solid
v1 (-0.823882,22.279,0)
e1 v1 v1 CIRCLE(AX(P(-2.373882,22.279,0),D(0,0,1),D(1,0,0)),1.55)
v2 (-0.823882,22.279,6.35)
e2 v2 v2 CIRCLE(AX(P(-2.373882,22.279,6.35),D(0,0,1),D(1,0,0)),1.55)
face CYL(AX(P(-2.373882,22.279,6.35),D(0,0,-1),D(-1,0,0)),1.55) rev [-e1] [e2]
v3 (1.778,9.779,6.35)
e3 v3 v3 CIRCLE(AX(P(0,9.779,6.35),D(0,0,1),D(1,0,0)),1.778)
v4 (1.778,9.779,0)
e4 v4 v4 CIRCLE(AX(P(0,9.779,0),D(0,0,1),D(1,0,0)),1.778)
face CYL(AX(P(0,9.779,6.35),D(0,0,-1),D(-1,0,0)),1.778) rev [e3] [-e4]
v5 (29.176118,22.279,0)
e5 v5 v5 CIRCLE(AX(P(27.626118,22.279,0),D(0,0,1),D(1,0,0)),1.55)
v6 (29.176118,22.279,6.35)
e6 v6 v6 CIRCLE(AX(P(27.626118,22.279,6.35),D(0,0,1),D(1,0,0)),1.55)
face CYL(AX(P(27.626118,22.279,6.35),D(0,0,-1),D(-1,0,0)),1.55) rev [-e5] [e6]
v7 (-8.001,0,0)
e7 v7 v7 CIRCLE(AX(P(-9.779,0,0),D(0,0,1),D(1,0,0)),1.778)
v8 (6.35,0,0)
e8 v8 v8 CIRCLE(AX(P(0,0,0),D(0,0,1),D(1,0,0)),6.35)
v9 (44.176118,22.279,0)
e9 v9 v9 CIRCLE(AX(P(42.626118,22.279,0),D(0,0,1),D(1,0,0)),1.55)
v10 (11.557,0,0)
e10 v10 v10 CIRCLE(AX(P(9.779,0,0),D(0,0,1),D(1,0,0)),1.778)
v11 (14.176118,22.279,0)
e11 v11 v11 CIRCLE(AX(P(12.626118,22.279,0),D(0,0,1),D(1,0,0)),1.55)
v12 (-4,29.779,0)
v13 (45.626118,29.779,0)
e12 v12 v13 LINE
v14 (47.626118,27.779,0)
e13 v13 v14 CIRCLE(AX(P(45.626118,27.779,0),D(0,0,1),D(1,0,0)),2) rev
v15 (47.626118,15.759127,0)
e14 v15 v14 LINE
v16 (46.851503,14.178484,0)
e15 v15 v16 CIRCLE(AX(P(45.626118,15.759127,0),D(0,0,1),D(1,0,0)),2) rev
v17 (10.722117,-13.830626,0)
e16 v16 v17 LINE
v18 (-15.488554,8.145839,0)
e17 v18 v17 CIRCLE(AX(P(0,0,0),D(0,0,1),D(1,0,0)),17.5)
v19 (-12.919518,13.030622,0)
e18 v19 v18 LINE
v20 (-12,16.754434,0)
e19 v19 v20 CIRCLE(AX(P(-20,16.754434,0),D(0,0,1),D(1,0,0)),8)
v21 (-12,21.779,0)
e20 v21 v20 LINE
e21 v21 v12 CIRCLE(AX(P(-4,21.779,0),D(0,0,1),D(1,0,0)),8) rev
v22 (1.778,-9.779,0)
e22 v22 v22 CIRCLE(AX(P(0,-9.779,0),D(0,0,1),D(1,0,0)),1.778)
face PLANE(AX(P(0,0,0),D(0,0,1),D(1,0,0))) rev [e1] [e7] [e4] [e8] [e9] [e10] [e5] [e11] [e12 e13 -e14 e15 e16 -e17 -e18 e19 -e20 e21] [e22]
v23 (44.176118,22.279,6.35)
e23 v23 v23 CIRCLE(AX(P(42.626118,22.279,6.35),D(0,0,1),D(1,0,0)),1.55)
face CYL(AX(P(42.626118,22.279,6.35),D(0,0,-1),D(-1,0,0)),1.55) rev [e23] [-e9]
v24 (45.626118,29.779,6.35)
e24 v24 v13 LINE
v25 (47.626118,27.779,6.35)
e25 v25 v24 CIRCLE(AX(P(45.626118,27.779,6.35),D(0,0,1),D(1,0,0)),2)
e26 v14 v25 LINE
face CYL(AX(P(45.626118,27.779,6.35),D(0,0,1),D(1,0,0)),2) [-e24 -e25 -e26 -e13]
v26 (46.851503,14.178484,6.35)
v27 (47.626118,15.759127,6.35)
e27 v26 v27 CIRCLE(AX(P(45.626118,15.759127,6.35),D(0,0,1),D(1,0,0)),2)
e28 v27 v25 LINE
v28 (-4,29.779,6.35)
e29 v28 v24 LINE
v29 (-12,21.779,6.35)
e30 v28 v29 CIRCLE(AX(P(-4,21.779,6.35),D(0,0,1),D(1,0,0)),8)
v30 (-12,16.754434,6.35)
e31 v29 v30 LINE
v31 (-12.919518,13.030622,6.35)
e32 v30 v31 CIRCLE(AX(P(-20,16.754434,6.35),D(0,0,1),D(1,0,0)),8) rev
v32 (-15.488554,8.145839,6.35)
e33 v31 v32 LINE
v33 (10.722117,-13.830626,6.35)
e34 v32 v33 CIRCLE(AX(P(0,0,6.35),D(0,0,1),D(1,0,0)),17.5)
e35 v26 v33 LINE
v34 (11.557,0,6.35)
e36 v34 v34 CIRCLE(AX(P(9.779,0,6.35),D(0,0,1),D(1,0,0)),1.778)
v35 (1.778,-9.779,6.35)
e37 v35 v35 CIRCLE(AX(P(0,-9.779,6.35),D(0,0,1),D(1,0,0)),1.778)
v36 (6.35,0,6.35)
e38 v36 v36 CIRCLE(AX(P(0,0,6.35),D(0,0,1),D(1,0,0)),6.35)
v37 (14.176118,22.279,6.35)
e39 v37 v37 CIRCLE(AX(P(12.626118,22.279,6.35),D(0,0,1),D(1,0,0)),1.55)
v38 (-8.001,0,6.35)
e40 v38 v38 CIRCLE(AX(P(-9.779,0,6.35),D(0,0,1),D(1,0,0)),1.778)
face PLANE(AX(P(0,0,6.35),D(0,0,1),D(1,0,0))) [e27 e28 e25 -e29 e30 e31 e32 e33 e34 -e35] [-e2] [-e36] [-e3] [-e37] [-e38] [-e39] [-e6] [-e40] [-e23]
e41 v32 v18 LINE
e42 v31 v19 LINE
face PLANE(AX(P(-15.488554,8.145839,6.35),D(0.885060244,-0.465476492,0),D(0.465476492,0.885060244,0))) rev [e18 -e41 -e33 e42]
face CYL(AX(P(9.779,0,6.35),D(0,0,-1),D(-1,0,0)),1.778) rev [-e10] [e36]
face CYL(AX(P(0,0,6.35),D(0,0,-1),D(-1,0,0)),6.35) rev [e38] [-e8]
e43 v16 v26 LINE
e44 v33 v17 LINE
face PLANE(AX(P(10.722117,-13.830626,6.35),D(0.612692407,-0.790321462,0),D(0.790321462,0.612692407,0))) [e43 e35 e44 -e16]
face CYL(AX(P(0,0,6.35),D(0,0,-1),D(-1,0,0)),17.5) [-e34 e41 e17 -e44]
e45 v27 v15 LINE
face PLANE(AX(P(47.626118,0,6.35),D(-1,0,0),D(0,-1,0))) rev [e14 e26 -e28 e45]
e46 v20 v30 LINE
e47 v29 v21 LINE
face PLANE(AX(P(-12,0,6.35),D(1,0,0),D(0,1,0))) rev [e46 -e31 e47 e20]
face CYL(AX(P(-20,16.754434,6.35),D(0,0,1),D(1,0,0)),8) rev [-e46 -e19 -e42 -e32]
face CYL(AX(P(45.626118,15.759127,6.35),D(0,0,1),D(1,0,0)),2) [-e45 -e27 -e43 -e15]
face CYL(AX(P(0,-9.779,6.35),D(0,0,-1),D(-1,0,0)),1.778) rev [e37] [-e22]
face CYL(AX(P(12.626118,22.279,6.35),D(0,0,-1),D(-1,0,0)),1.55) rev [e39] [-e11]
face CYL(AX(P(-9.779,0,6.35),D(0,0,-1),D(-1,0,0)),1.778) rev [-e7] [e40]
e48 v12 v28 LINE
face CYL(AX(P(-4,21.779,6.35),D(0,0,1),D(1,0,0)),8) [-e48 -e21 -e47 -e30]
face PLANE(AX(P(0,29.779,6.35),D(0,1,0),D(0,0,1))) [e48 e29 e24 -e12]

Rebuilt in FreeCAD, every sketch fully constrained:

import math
import FreeCAD as App
import Part
import Sketcher
from FreeCAD import Vector
Q = App.Units.Quantity


def edges_at(feature, points):
    """Names of the edges that pass closest to the given points."""
    edges = feature.Shape.Edges
    near = lambda p: min(range(len(edges)), key=lambda i: edges[i].distToShape(Part.Vertex(*p))[0])
    return sorted({f"Edge{near(p) + 1}" for p in points})

doc = App.newDocument("Part")
body = doc.addObject("PartDesign::Body", "Body")

# Sketch on XY plane
sketch1 = doc.addObject("Sketcher::SketchObject", "Sketch")
body.addObject(sketch1)
sketch1.AttachmentSupport = (doc.XY_Plane, [""])
sketch1.MapMode = "FlatFace"
sketch1.addGeometry(Part.LineSegment(Vector(47.6, 29.8, 0), Vector(-12, 29.8, 0)), False)
sketch1.addGeometry(Part.LineSegment(Vector(-12, 29.8, 0), Vector(-12, 14.8, 0)), False)
sketch1.addGeometry(Part.LineSegment(Vector(-12, 14.8, 0), Vector(-15.5, 8.1, 0)), False)
sketch1.addGeometry(Part.ArcOfCircle(Part.Circle(Vector(0, 0, 0), Vector(0, 0, 1), 17.5), math.radians(152), math.radians(308)), False)
sketch1.addGeometry(Part.LineSegment(Vector(10.7, -13.8, 0), Vector(47.6, 14.8, 0)), False)
sketch1.addGeometry(Part.LineSegment(Vector(47.6, 14.8, 0), Vector(47.6, 29.8, 0)), False)
sketch1.addGeometry(Part.Circle(Vector(0, -9.8, 0), Vector(0, 0, 1), 1.8), False)
sketch1.addGeometry(Part.Circle(Vector(-9.8, 0, 0), Vector(0, 0, 1), 1.8), False)
sketch1.addGeometry(Part.Circle(Vector(0, 0, 0), Vector(0, 0, 1), 6.3), False)
sketch1.addGeometry(Part.Circle(Vector(9.8, 0, 0), Vector(0, 0, 1), 1.8), False)
sketch1.addGeometry(Part.Circle(Vector(0, 9.8, 0), Vector(0, 0, 1), 1.8), False)
sketch1.addGeometry(Part.Circle(Vector(-2.4, 22.3, 0), Vector(0, 0, 1), 1.6), False)
sketch1.addGeometry(Part.Circle(Vector(12.6, 22.3, 0), Vector(0, 0, 1), 1.6), False)
sketch1.addGeometry(Part.Circle(Vector(27.6, 22.3, 0), Vector(0, 0, 1), 1.6), False)
sketch1.addGeometry(Part.Circle(Vector(42.6, 22.3, 0), Vector(0, 0, 1), 1.6), False)
sketch1.addConstraint(Sketcher.Constraint("Coincident", 0, 2, 1, 1))
sketch1.addConstraint(Sketcher.Constraint("Coincident", 1, 2, 2, 1))
sketch1.addConstraint(Sketcher.Constraint("Tangent", 2, 2, 3, 1))
sketch1.addConstraint(Sketcher.Constraint("Tangent", 3, 2, 4, 1))
sketch1.addConstraint(Sketcher.Constraint("Coincident", 4, 2, 5, 1))
sketch1.addConstraint(Sketcher.Constraint("Coincident", 5, 2, 0, 1))
sketch1.addConstraint(Sketcher.Constraint("Horizontal", 0))
sketch1.addConstraint(Sketcher.Constraint("Vertical", 1))
sketch1.addConstraint(Sketcher.Constraint("Vertical", 5))
sketch1.addConstraint(Sketcher.Constraint("Coincident", 3, 3, -1, 1))
sketch1.addConstraint(Sketcher.Constraint("Coincident", 8, 3, -1, 1))
sketch1.addConstraint(Sketcher.Constraint("Equal", 6, 7))
sketch1.addConstraint(Sketcher.Constraint("Equal", 7, 9))
sketch1.addConstraint(Sketcher.Constraint("Equal", 9, 10))
sketch1.addConstraint(Sketcher.Constraint("Equal", 11, 12))
sketch1.addConstraint(Sketcher.Constraint("Equal", 12, 13))
sketch1.addConstraint(Sketcher.Constraint("Equal", 13, 14))
sketch1.addConstraint(Sketcher.Constraint("Symmetric", 7, 3, 9, 3, -1, 1))
sketch1.addConstraint(Sketcher.Constraint("Symmetric", 6, 3, 10, 3, -1, 1))
sketch1.addConstraint(Sketcher.Constraint("PointOnObject", 6, 3, -2))
sketch1.addConstraint(Sketcher.Constraint("PointOnObject", 7, 3, -1))
sketch1.addConstraint(Sketcher.Constraint("Horizontal", 11, 3, 12, 3))
sketch1.addConstraint(Sketcher.Constraint("Horizontal", 12, 3, 13, 3))
sketch1.addConstraint(Sketcher.Constraint("Horizontal", 13, 3, 14, 3))
sketch1.addConstraint(Sketcher.Constraint("Horizontal", 1, 2, 4, 2))
sketch1.addConstraint(Sketcher.Constraint("Diameter", 8, Q("12.7 mm")))
sketch1.addConstraint(Sketcher.Constraint("Diameter", 11, Q("3.1 mm")))
sketch1.addConstraint(Sketcher.Constraint("Radius", 3, Q("17.5 mm")))
sketch1.addConstraint(Sketcher.Constraint("DistanceY", 1, 2, 1, 1, Q("15 mm")))
sketch1.addConstraint(Sketcher.Constraint("Diameter", 6, Q("3.556 mm")))
sketch1.addConstraint(Sketcher.Constraint("DistanceX", 0, 2, -1, 1, Q("12 mm")))
sketch1.addConstraint(Sketcher.Constraint("DistanceX", 11, 3, 12, 3, Q("15 mm")))
sketch1.addConstraint(Sketcher.Constraint("DistanceX", 12, 3, 13, 3, Q("15 mm")))
sketch1.addConstraint(Sketcher.Constraint("DistanceX", 13, 3, 14, 3, Q("15 mm")))
sketch1.addConstraint(Sketcher.Constraint("DistanceY", 10, 3, 0, 2, Q("20 mm")))
sketch1.addConstraint(Sketcher.Constraint("DistanceX", 14, 3, 4, 2, Q("5 mm")))
sketch1.addConstraint(Sketcher.Constraint("DistanceY", 10, 3, 11, 3, Q("12.5 mm")))
sketch1.addConstraint(Sketcher.Constraint("DistanceY", 6, 3, -1, 1, Q("9.779 mm")))
sketch1.addConstraint(Sketcher.Constraint("DistanceX", 7, 3, -1, 1, Q("9.779 mm")))
sketch1.addConstraint(Sketcher.Constraint("DistanceX", 3, 2, 4, 2, Q("36.904001 mm")))
pad1 = doc.addObject("PartDesign::Pad", "Pad")
body.addObject(pad1)
pad1.Profile = sketch1
pad1.Length = 6.35
doc.recompute()

fillet = doc.addObject("PartDesign::Fillet", "Fillet")
body.addObject(fillet)
fillet.Base = (pad1, edges_at(pad1, [(47.626, 29.779, 3.175), (47.626, 14.779, 3.175)]))
fillet.Radius = 2
doc.recompute()

fillet2 = doc.addObject("PartDesign::Fillet", "Fillet001")
body.addObject(fillet2)
fillet2.Base = (fillet, edges_at(fillet, [(-12, 14.779, 3.175), (-12, 29.779, 3.175)]))
fillet2.Radius = 8

doc.recompute()
